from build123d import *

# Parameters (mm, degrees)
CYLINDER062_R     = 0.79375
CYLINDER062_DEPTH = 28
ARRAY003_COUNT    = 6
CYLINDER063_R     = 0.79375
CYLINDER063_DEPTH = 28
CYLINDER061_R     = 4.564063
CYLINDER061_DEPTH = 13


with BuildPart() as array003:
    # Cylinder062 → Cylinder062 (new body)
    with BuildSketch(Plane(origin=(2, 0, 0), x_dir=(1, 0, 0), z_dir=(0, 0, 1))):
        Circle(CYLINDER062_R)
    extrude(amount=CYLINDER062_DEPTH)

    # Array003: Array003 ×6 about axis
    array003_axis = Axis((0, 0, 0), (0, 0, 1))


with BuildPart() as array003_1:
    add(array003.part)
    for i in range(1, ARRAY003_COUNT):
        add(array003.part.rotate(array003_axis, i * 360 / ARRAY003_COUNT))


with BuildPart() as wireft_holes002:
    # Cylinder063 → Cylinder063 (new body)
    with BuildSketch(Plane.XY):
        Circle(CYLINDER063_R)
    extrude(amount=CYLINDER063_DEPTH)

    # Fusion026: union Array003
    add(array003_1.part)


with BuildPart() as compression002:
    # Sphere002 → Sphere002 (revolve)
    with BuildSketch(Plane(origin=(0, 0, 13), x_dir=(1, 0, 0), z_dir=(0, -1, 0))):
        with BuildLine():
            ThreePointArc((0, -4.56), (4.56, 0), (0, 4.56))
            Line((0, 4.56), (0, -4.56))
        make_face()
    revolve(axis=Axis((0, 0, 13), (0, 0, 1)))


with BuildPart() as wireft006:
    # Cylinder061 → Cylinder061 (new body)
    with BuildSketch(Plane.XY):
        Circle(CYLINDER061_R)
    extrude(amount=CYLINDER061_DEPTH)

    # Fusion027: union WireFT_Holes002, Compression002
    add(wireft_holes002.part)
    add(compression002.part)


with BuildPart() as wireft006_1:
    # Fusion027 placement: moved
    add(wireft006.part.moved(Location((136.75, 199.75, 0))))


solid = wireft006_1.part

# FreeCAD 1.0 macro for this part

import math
import FreeCAD as App
import Part
import Sketcher

doc = App.newDocument("Part")
params = doc.addObject("Spreadsheet::Sheet", "Params")
for row, (alias, value) in enumerate([
    ("pad1_length", "28 mm"),
    ("pad2_length", "28 mm"),
    ("sketch3_radius", "4.56 mm"),
    ("revolution_angle", "360 deg"),
    ("pad3_length", "13 mm"),
], start=1):
    params.set(f"A{row}", alias)
    params.set(f"B{row}", "=" + value)
    params.setAlias(f"B{row}", alias)

body = doc.addObject("PartDesign::Body", "Body")

# Sketch on XY plane
sketch1 = body.newObject("Sketcher::SketchObject", "Sketch")
sketch1.AttachmentSupport = (doc.getObject("XY_Plane"), [""])
sketch1.MapMode = "FlatFace"
sketch1.addGeometry(Part.Circle(App.Vector(2, 0, 0), App.Vector(0, 0, 1), 0.8), False)
sketch1.addConstraint(Sketcher.Constraint("PointOnObject", 0, 3, -1))
sketch1.addConstraint(Sketcher.Constraint("DistanceX", -1, 1, 0, 3, 2.0))
sketch1.addConstraint(Sketcher.Constraint("Diameter", 0, 1.5875))
pad1 = body.newObject("PartDesign::Pad", "Pad")
pad1.Profile = sketch1
pad1.setExpression("Length", "Params.pad1_length")
body2 = doc.addObject("PartDesign::Body", "Body001")
body2.AllowCompound = True
doc.recompute()

body2.BaseFeature = body
doc.recompute()

body3 = doc.addObject("PartDesign::Body", "Body002")
body3.BaseFeature = body
body3.Placement = App.Placement(App.Vector(0, 0, 0), App.Rotation(App.Vector(0, 0, 1), 60))
boolean = body2.newObject("PartDesign::Boolean", "Boolean")
boolean.Type = "Fuse"
boolean.addObjects([body3])
doc.recompute()

body4 = doc.addObject("PartDesign::Body", "Body003")
body4.BaseFeature = body
body4.Placement = App.Placement(App.Vector(0, 0, 0), App.Rotation(App.Vector(0, 0, 1), 120))
boolean2 = body2.newObject("PartDesign::Boolean", "Boolean001")
boolean2.Type = "Fuse"
boolean2.addObjects([body4])
doc.recompute()

body5 = doc.addObject("PartDesign::Body", "Body004")
body5.BaseFeature = body
body5.Placement = App.Placement(App.Vector(0, 0, 0), App.Rotation(App.Vector(0, 0, 1), 180))
boolean3 = body2.newObject("PartDesign::Boolean", "Boolean002")
boolean3.Type = "Fuse"
boolean3.addObjects([body5])
doc.recompute()

body6 = doc.addObject("PartDesign::Body", "Body005")
body6.BaseFeature = body
body6.Placement = App.Placement(App.Vector(0, 0, 0), App.Rotation(App.Vector(0, 0, 1), 240))
boolean4 = body2.newObject("PartDesign::Boolean", "Boolean003")
boolean4.Type = "Fuse"
boolean4.addObjects([body6])
doc.recompute()

body.Placement = App.Placement(App.Vector(0, 0, 0), App.Rotation(App.Vector(0, 0, 1), 300))
boolean5 = body2.newObject("PartDesign::Boolean", "Boolean004")
boolean5.Type = "Fuse"
boolean5.addObjects([body])
body7 = doc.addObject("PartDesign::Body", "Body006")
body7.AllowCompound = True

# Sketch on XY plane
sketch2 = body7.newObject("Sketcher::SketchObject", "Sketch001")
sketch2.AttachmentSupport = (doc.getObject("XY_Plane006"), [""])
sketch2.MapMode = "FlatFace"
sketch2.addGeometry(Part.Circle(App.Vector(0, 0, 0), App.Vector(0, 0, 1), 0.8), False)
sketch2.addConstraint(Sketcher.Constraint("Coincident", 0, 3, -1, 1))
sketch2.addConstraint(Sketcher.Constraint("Diameter", 0, 1.5875))
pad2 = body7.newObject("PartDesign::Pad", "Pad001")
pad2.Profile = sketch2
pad2.setExpression("Length", "Params.pad2_length")
doc.recompute()

boolean6 = body7.newObject("PartDesign::Boolean", "Boolean005")
boolean6.Type = "Fuse"
boolean6.addObjects([body2])
body8 = doc.addObject("PartDesign::Body", "Body007")

# Sketch on XZ plane
sketch3 = body8.newObject("Sketcher::SketchObject", "Sketch002")
sketch3.AttachmentSupport = (doc.getObject("XZ_Plane007"), [""])
sketch3.MapMode = "FlatFace"
sketch3.addGeometry(Part.ArcOfCircle(Part.Circle(App.Vector(0, 13, 0), App.Vector(0, 0, 1), 4.6), math.radians(-90), math.radians(90)), False)
sketch3.addGeometry(Part.LineSegment(App.Vector(0, 17.6, 0), App.Vector(0, 8.4, 0)), False)
sketch3.addConstraint(Sketcher.Constraint("Coincident", 0, 1, 1, 2))
sketch3.addConstraint(Sketcher.Constraint("Coincident", 1, 1, 0, 2))
sketch3.addConstraint(Sketcher.Constraint("Vertical", 1))
sketch3.addConstraint(Sketcher.Constraint("PointOnObject", 0, 3, -2))
sketch3.addConstraint(Sketcher.Constraint("PointOnObject", 0, 1, -2))
sketch3.addConstraint(Sketcher.Constraint("Radius", 0, 4.56))
sketch3.addConstraint(Sketcher.Constraint("DistanceY", -1, 1, 0, 3, 13.0))
sketch3.setExpression("Constraints[5]", "Params.sketch3_radius")
revolution = body8.newObject("PartDesign::Revolution", "Revolution")
revolution.Profile = sketch3
revolution.ReferenceAxis = (sketch3, ["V_Axis"])
revolution.setExpression("Angle", "Params.revolution_angle")
body9 = doc.addObject("PartDesign::Body", "Body008")

# Sketch on XY plane
sketch4 = body9.newObject("Sketcher::SketchObject", "Sketch003")
sketch4.AttachmentSupport = (doc.getObject("XY_Plane008"), [""])
sketch4.MapMode = "FlatFace"
sketch4.addGeometry(Part.Circle(App.Vector(0, 0, 0), App.Vector(0, 0, 1), 4.6), False)
sketch4.addConstraint(Sketcher.Constraint("Coincident", 0, 3, -1, 1))
sketch4.addConstraint(Sketcher.Constraint("Diameter", 0, 9.128126))
pad3 = body9.newObject("PartDesign::Pad", "Pad002")
pad3.Profile = sketch4
pad3.setExpression("Length", "Params.pad3_length")
doc.recompute()

boolean7 = body9.newObject("PartDesign::Boolean", "Boolean006")
boolean7.Type = "Fuse"
boolean7.addObjects([body7])
doc.recompute()

boolean8 = body9.newObject("PartDesign::Boolean", "Boolean007")
boolean8.Type = "Fuse"
boolean8.addObjects([body8])
body10 = doc.addObject("PartDesign::Body", "Body009")
doc.recompute()

body9.Placement = App.Placement(App.Vector(136.75, 199.75, 0), App.Rotation(App.Vector(0, 0, 1), 0))
boolean9 = body10.newObject("PartDesign::Boolean", "Boolean008")
boolean9.Type = "Fuse"
boolean9.addObjects([body9])

doc.recompute()
